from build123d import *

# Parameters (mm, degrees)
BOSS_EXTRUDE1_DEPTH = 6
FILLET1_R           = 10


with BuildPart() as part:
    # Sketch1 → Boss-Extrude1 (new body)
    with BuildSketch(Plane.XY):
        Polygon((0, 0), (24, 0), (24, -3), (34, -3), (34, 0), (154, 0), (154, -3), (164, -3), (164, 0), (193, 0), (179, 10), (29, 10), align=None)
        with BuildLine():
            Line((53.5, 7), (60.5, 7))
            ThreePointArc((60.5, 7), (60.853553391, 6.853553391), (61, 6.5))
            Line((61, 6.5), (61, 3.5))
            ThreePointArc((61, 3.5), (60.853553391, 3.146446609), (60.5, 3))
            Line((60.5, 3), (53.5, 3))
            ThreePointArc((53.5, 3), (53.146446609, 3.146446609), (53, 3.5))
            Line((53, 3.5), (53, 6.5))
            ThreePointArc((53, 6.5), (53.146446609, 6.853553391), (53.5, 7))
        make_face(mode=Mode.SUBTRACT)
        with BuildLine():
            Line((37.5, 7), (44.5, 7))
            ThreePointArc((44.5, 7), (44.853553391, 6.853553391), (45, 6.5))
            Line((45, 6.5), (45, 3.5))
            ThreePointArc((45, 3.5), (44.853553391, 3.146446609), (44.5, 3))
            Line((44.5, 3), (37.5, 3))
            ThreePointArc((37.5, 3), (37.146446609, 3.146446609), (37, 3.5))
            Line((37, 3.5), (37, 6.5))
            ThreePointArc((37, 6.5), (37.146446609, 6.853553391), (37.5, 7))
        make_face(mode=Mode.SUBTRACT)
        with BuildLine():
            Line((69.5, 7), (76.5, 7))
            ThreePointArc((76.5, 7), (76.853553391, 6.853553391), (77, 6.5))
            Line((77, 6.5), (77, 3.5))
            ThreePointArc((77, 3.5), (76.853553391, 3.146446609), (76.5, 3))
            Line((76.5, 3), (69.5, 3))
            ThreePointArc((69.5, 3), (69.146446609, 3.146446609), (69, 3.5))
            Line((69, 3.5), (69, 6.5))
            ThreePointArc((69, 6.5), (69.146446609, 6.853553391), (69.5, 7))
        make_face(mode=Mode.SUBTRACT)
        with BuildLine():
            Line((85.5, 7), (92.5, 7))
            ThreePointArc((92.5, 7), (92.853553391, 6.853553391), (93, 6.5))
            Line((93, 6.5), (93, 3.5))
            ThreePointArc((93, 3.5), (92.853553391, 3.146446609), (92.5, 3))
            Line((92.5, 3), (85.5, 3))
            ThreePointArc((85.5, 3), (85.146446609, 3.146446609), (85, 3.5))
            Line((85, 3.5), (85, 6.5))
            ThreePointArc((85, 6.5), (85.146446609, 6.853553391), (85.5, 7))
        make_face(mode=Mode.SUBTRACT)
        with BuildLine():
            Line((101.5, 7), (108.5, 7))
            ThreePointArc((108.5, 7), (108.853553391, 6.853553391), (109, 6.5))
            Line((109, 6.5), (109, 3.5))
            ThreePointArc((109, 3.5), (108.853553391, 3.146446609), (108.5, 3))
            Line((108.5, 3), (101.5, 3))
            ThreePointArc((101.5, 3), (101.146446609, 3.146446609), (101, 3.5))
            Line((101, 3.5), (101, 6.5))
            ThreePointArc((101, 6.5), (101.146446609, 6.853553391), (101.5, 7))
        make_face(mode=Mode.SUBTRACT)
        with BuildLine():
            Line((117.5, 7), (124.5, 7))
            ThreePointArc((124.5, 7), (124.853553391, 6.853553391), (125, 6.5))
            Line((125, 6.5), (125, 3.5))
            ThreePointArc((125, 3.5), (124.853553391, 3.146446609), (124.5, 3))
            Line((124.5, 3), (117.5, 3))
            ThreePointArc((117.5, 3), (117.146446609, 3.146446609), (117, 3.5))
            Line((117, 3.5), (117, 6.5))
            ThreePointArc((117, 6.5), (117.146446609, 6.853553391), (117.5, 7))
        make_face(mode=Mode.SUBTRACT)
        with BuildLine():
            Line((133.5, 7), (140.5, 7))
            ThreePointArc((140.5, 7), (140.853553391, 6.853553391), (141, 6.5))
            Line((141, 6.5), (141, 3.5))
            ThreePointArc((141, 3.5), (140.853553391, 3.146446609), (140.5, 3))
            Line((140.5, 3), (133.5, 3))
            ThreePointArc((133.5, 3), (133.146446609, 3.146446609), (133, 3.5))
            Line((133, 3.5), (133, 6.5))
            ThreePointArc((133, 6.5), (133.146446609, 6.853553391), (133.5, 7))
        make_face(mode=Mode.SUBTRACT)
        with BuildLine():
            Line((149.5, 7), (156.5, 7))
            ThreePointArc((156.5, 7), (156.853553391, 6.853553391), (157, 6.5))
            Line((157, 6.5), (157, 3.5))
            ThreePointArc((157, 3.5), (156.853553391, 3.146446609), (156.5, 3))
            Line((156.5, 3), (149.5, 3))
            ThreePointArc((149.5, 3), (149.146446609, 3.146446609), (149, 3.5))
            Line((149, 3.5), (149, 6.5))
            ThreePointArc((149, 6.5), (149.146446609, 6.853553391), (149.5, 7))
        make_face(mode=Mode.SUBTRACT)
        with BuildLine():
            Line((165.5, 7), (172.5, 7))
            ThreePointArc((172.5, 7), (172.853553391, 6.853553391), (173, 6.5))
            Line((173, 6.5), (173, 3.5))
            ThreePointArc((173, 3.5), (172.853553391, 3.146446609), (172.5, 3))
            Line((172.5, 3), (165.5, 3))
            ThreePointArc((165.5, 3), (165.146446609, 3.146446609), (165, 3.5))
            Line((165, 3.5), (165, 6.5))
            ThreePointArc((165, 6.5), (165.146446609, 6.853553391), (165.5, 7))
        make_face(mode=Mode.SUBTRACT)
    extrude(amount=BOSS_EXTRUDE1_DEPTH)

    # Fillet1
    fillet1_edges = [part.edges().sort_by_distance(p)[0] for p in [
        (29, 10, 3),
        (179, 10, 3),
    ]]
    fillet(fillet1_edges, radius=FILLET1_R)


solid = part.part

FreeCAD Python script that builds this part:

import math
import FreeCAD as App
import Part
import Sketcher
Q = App.Units.Quantity


def edges_at(feature, points):
    """Names of the edges that pass closest to the given points."""
    edges = feature.Shape.Edges
    near = lambda p: min(range(len(edges)), key=lambda i: edges[i].distToShape(Part.Vertex(*p))[0])
    return sorted({f"Edge{near(p) + 1}" for p in points})

doc = App.newDocument("Part")
params = doc.addObject("Spreadsheet::Sheet", "Params")
for row, (alias, value) in enumerate([
    ("sketch1_radius", "0.5 mm"),
    ("sketch1_width", "24 mm"),
    ("sketch1_width2", "10 mm"),
    ("sketch1_width3", "120 mm"),
    ("sketch1_width4", "29 mm"),
    ("pad1_length", "6 mm"),
    ("fillet_radius", "10 mm"),
], start=1):
    params.set(f"A{row}", alias)
    params.set(f"B{row}", "=" + value)
    params.setAlias(f"B{row}", alias)

body = doc.addObject("PartDesign::Body", "Body")

# Sketch on XY plane
sketch1 = body.newObject("Sketcher::SketchObject", "Sketch")
sketch1.AttachmentSupport = (doc.getObject("XY_Plane"), [""])
sketch1.MapMode = "FlatFace"
sketch1.addGeometry([
    Part.LineSegment(App.Vector(0, 0, 0), App.Vector(24, 0, 0)),  # 0
    Part.LineSegment(App.Vector(24, 0, 0), App.Vector(24, -3, 0)),  # 1
    Part.LineSegment(App.Vector(24, -3, 0), App.Vector(34, -3, 0)),  # 2
    Part.LineSegment(App.Vector(34, -3, 0), App.Vector(34, 0, 0)),  # 3
    Part.LineSegment(App.Vector(34, 0, 0), App.Vector(154, 0, 0)),  # 4
    Part.LineSegment(App.Vector(154, 0, 0), App.Vector(154, -3, 0)),  # 5
    Part.LineSegment(App.Vector(154, -3, 0), App.Vector(164, -3, 0)),  # 6
    Part.LineSegment(App.Vector(164, -3, 0), App.Vector(164, 0, 0)),  # 7
    Part.LineSegment(App.Vector(164, 0, 0), App.Vector(193, 0, 0)),  # 8
    Part.LineSegment(App.Vector(193, 0, 0), App.Vector(179, 10, 0)),  # 9
    Part.LineSegment(App.Vector(179, 10, 0), App.Vector(29, 10, 0)),  # 10
    Part.LineSegment(App.Vector(29, 10, 0), App.Vector(0, 0, 0)),  # 11
    Part.ArcOfCircle(Part.Circle(App.Vector(37.5, 6.5, 0), App.Vector(0, 0, 1), 0.5), math.radians(90), math.radians(180)),  # 12
    Part.LineSegment(App.Vector(37.5, 7, 0), App.Vector(44.5, 7, 0)),  # 13
    Part.ArcOfCircle(Part.Circle(App.Vector(44.5, 6.5, 0), App.Vector(0, 0, 1), 0.5), math.radians(0), math.radians(90)),  # 14
    Part.LineSegment(App.Vector(45, 6.5, 0), App.Vector(45, 3.5, 0)),  # 15
    Part.ArcOfCircle(Part.Circle(App.Vector(44.5, 3.5, 0), App.Vector(0, 0, 1), 0.5), math.radians(-90), math.radians(0)),  # 16
    Part.LineSegment(App.Vector(44.5, 3, 0), App.Vector(37.5, 3, 0)),  # 17
    Part.ArcOfCircle(Part.Circle(App.Vector(37.5, 3.5, 0), App.Vector(0, 0, 1), 0.5), math.radians(180), math.radians(270)),  # 18
    Part.LineSegment(App.Vector(37, 3.5, 0), App.Vector(37, 6.5, 0)),  # 19
    Part.ArcOfCircle(Part.Circle(App.Vector(53.5, 6.5, 0), App.Vector(0, 0, 1), 0.5), math.radians(90), math.radians(180)),  # 20
    Part.LineSegment(App.Vector(53.5, 7, 0), App.Vector(60.5, 7, 0)),  # 21
    Part.ArcOfCircle(Part.Circle(App.Vector(60.5, 6.5, 0), App.Vector(0, 0, 1), 0.5), math.radians(0), math.radians(90)),  # 22
    Part.LineSegment(App.Vector(61, 6.5, 0), App.Vector(61, 3.5, 0)),  # 23
    Part.ArcOfCircle(Part.Circle(App.Vector(60.5, 3.5, 0), App.Vector(0, 0, 1), 0.5), math.radians(-90), math.radians(0)),  # 24
    Part.LineSegment(App.Vector(60.5, 3, 0), App.Vector(53.5, 3, 0)),  # 25
    Part.ArcOfCircle(Part.Circle(App.Vector(53.5, 3.5, 0), App.Vector(0, 0, 1), 0.5), math.radians(180), math.radians(270)),  # 26
    Part.LineSegment(App.Vector(53, 3.5, 0), App.Vector(53, 6.5, 0)),  # 27
    Part.ArcOfCircle(Part.Circle(App.Vector(69.5, 6.5, 0), App.Vector(0, 0, 1), 0.5), math.radians(90), math.radians(180)),  # 28
    Part.LineSegment(App.Vector(69.5, 7, 0), App.Vector(76.5, 7, 0)),  # 29
    Part.ArcOfCircle(Part.Circle(App.Vector(76.5, 6.5, 0), App.Vector(0, 0, 1), 0.5), math.radians(0), math.radians(90)),  # 30
    Part.LineSegment(App.Vector(77, 6.5, 0), App.Vector(77, 3.5, 0)),  # 31
    Part.ArcOfCircle(Part.Circle(App.Vector(76.5, 3.5, 0), App.Vector(0, 0, 1), 0.5), math.radians(-90), math.radians(0)),  # 32
    Part.LineSegment(App.Vector(76.5, 3, 0), App.Vector(69.5, 3, 0)),  # 33
    Part.ArcOfCircle(Part.Circle(App.Vector(69.5, 3.5, 0), App.Vector(0, 0, 1), 0.5), math.radians(180), math.radians(270)),  # 34
    Part.LineSegment(App.Vector(69, 3.5, 0), App.Vector(69, 6.5, 0)),  # 35
    Part.ArcOfCircle(Part.Circle(App.Vector(85.5, 6.5, 0), App.Vector(0, 0, 1), 0.5), math.radians(90), math.radians(180)),  # 36
    Part.LineSegment(App.Vector(85.5, 7, 0), App.Vector(92.5, 7, 0)),  # 37
    Part.ArcOfCircle(Part.Circle(App.Vector(92.5, 6.5, 0), App.Vector(0, 0, 1), 0.5), math.radians(0), math.radians(90)),  # 38
    Part.LineSegment(App.Vector(93, 6.5, 0), App.Vector(93, 3.5, 0)),  # 39
    Part.ArcOfCircle(Part.Circle(App.Vector(92.5, 3.5, 0), App.Vector(0, 0, 1), 0.5), math.radians(-90), math.radians(0)),  # 40
    Part.LineSegment(App.Vector(92.5, 3, 0), App.Vector(85.5, 3, 0)),  # 41
    Part.ArcOfCircle(Part.Circle(App.Vector(85.5, 3.5, 0), App.Vector(0, 0, 1), 0.5), math.radians(180), math.radians(270)),  # 42
    Part.LineSegment(App.Vector(85, 3.5, 0), App.Vector(85, 6.5, 0)),  # 43
    Part.ArcOfCircle(Part.Circle(App.Vector(101.5, 6.5, 0), App.Vector(0, 0, 1), 0.5), math.radians(90), math.radians(180)),  # 44
    Part.LineSegment(App.Vector(101.5, 7, 0), App.Vector(108.5, 7, 0)),  # 45
    Part.ArcOfCircle(Part.Circle(App.Vector(108.5, 6.5, 0), App.Vector(0, 0, 1), 0.5), math.radians(0), math.radians(90)),  # 46
    Part.LineSegment(App.Vector(109, 6.5, 0), App.Vector(109, 3.5, 0)),  # 47
    Part.ArcOfCircle(Part.Circle(App.Vector(108.5, 3.5, 0), App.Vector(0, 0, 1), 0.5), math.radians(-90), math.radians(0)),  # 48
    Part.LineSegment(App.Vector(108.5, 3, 0), App.Vector(101.5, 3, 0)),  # 49
    Part.ArcOfCircle(Part.Circle(App.Vector(101.5, 3.5, 0), App.Vector(0, 0, 1), 0.5), math.radians(180), math.radians(270)),  # 50
    Part.LineSegment(App.Vector(101, 3.5, 0), App.Vector(101, 6.5, 0)),  # 51
    Part.ArcOfCircle(Part.Circle(App.Vector(117.5, 6.5, 0), App.Vector(0, 0, 1), 0.5), math.radians(90), math.radians(180)),  # 52
    Part.LineSegment(App.Vector(117.5, 7, 0), App.Vector(124.5, 7, 0)),  # 53
    Part.ArcOfCircle(Part.Circle(App.Vector(124.5, 6.5, 0), App.Vector(0, 0, 1), 0.5), math.radians(0), math.radians(90)),  # 54
    Part.LineSegment(App.Vector(125, 6.5, 0), App.Vector(125, 3.5, 0)),  # 55
    Part.ArcOfCircle(Part.Circle(App.Vector(124.5, 3.5, 0), App.Vector(0, 0, 1), 0.5), math.radians(-90), math.radians(0)),  # 56
    Part.LineSegment(App.Vector(124.5, 3, 0), App.Vector(117.5, 3, 0)),  # 57
    Part.ArcOfCircle(Part.Circle(App.Vector(117.5, 3.5, 0), App.Vector(0, 0, 1), 0.5), math.radians(180), math.radians(270)),  # 58
    Part.LineSegment(App.Vector(117, 3.5, 0), App.Vector(117, 6.5, 0)),  # 59
    Part.ArcOfCircle(Part.Circle(App.Vector(133.5, 6.5, 0), App.Vector(0, 0, 1), 0.5), math.radians(90), math.radians(180)),  # 60
    Part.LineSegment(App.Vector(133.5, 7, 0), App.Vector(140.5, 7, 0)),  # 61
    Part.ArcOfCircle(Part.Circle(App.Vector(140.5, 6.5, 0), App.Vector(0, 0, 1), 0.5), math.radians(0), math.radians(90)),  # 62
    Part.LineSegment(App.Vector(141, 6.5, 0), App.Vector(141, 3.5, 0)),  # 63
    Part.ArcOfCircle(Part.Circle(App.Vector(140.5, 3.5, 0), App.Vector(0, 0, 1), 0.5), math.radians(-90), math.radians(0)),  # 64
    Part.LineSegment(App.Vector(140.5, 3, 0), App.Vector(133.5, 3, 0)),  # 65
    Part.ArcOfCircle(Part.Circle(App.Vector(133.5, 3.5, 0), App.Vector(0, 0, 1), 0.5), math.radians(180), math.radians(270)),  # 66
    Part.LineSegment(App.Vector(133, 3.5, 0), App.Vector(133, 6.5, 0)),  # 67
    Part.ArcOfCircle(Part.Circle(App.Vector(149.5, 6.5, 0), App.Vector(0, 0, 1), 0.5), math.radians(90), math.radians(180)),  # 68
    Part.LineSegment(App.Vector(149.5, 7, 0), App.Vector(156.5, 7, 0)),  # 69
    Part.ArcOfCircle(Part.Circle(App.Vector(156.5, 6.5, 0), App.Vector(0, 0, 1), 0.5), math.radians(0), math.radians(90)),  # 70
    Part.LineSegment(App.Vector(157, 6.5, 0), App.Vector(157, 3.5, 0)),  # 71
    Part.ArcOfCircle(Part.Circle(App.Vector(156.5, 3.5, 0), App.Vector(0, 0, 1), 0.5), math.radians(-90), math.radians(0)),  # 72
    Part.LineSegment(App.Vector(156.5, 3, 0), App.Vector(149.5, 3, 0)),  # 73
    Part.ArcOfCircle(Part.Circle(App.Vector(149.5, 3.5, 0), App.Vector(0, 0, 1), 0.5), math.radians(180), math.radians(270)),  # 74
    Part.LineSegment(App.Vector(149, 3.5, 0), App.Vector(149, 6.5, 0)),  # 75
    Part.ArcOfCircle(Part.Circle(App.Vector(165.5, 6.5, 0), App.Vector(0, 0, 1), 0.5), math.radians(90), math.radians(180)),  # 76
    Part.LineSegment(App.Vector(165.5, 7, 0), App.Vector(172.5, 7, 0)),  # 77
    Part.ArcOfCircle(Part.Circle(App.Vector(172.5, 6.5, 0), App.Vector(0, 0, 1), 0.5), math.radians(0), math.radians(90)),  # 78
    Part.LineSegment(App.Vector(173, 6.5, 0), App.Vector(173, 3.5, 0)),  # 79
    Part.ArcOfCircle(Part.Circle(App.Vector(172.5, 3.5, 0), App.Vector(0, 0, 1), 0.5), math.radians(-90), math.radians(0)),  # 80
    Part.LineSegment(App.Vector(172.5, 3, 0), App.Vector(165.5, 3, 0)),  # 81
    Part.ArcOfCircle(Part.Circle(App.Vector(165.5, 3.5, 0), App.Vector(0, 0, 1), 0.5), math.radians(180), math.radians(270)),  # 82
    Part.LineSegment(App.Vector(165, 3.5, 0), App.Vector(165, 6.5, 0)),  # 83
], False)
sketch1.addConstraint([
    Sketcher.Constraint("Coincident", 0, 2, 1, 1),
    Sketcher.Constraint("Coincident", 1, 2, 2, 1),
    Sketcher.Constraint("Coincident", 2, 2, 3, 1),
    Sketcher.Constraint("Coincident", 3, 2, 4, 1),
    Sketcher.Constraint("Coincident", 4, 2, 5, 1),
    Sketcher.Constraint("Coincident", 5, 2, 6, 1),
    Sketcher.Constraint("Coincident", 6, 2, 7, 1),
    Sketcher.Constraint("Coincident", 7, 2, 8, 1),
    Sketcher.Constraint("Coincident", 8, 2, 9, 1),
    Sketcher.Constraint("Coincident", 9, 2, 10, 1),
    Sketcher.Constraint("Coincident", 10, 2, 11, 1),
    Sketcher.Constraint("Coincident", 11, 2, 0, 1),
    Sketcher.Constraint("Tangent", 12, 1, 13, 1),
    Sketcher.Constraint("Tangent", 13, 2, 14, 2),
    Sketcher.Constraint("Tangent", 14, 1, 15, 1),
    Sketcher.Constraint("Tangent", 15, 2, 16, 2),
    Sketcher.Constraint("Tangent", 16, 1, 17, 1),
    Sketcher.Constraint("Tangent", 17, 2, 18, 2),
    Sketcher.Constraint("Tangent", 18, 1, 19, 1),
    Sketcher.Constraint("Tangent", 19, 2, 12, 2),
    Sketcher.Constraint("Tangent", 20, 1, 21, 1),
    Sketcher.Constraint("Tangent", 21, 2, 22, 2),
    Sketcher.Constraint("Tangent", 22, 1, 23, 1),
    Sketcher.Constraint("Tangent", 23, 2, 24, 2),
    Sketcher.Constraint("Tangent", 24, 1, 25, 1),
    Sketcher.Constraint("Tangent", 25, 2, 26, 2),
    Sketcher.Constraint("Tangent", 26, 1, 27, 1),
    Sketcher.Constraint("Tangent", 27, 2, 20, 2),
    Sketcher.Constraint("Tangent", 28, 1, 29, 1),
    Sketcher.Constraint("Tangent", 29, 2, 30, 2),
    Sketcher.Constraint("Tangent", 30, 1, 31, 1),
    Sketcher.Constraint("Tangent", 31, 2, 32, 2),
    Sketcher.Constraint("Tangent", 32, 1, 33, 1),
    Sketcher.Constraint("Tangent", 33, 2, 34, 2),
    Sketcher.Constraint("Tangent", 34, 1, 35, 1),
    Sketcher.Constraint("Tangent", 35, 2, 28, 2),
    Sketcher.Constraint("Tangent", 36, 1, 37, 1),
    Sketcher.Constraint("Tangent", 37, 2, 38, 2),
    Sketcher.Constraint("Tangent", 38, 1, 39, 1),
    Sketcher.Constraint("Tangent", 39, 2, 40, 2),
    Sketcher.Constraint("Tangent", 40, 1, 41, 1),
    Sketcher.Constraint("Tangent", 41, 2, 42, 2),
    Sketcher.Constraint("Tangent", 42, 1, 43, 1),
    Sketcher.Constraint("Tangent", 43, 2, 36, 2),
    Sketcher.Constraint("Tangent", 44, 1, 45, 1),
    Sketcher.Constraint("Tangent", 45, 2, 46, 2),
    Sketcher.Constraint("Tangent", 46, 1, 47, 1),
    Sketcher.Constraint("Tangent", 47, 2, 48, 2),
    Sketcher.Constraint("Tangent", 48, 1, 49, 1),
    Sketcher.Constraint("Tangent", 49, 2, 50, 2),
    Sketcher.Constraint("Tangent", 50, 1, 51, 1),
    Sketcher.Constraint("Tangent", 51, 2, 44, 2),
    Sketcher.Constraint("Tangent", 52, 1, 53, 1),
    Sketcher.Constraint("Tangent", 53, 2, 54, 2),
    Sketcher.Constraint("Tangent", 54, 1, 55, 1),
    Sketcher.Constraint("Tangent", 55, 2, 56, 2),
    Sketcher.Constraint("Tangent", 56, 1, 57, 1),
    Sketcher.Constraint("Tangent", 57, 2, 58, 2),
    Sketcher.Constraint("Tangent", 58, 1, 59, 1),
    Sketcher.Constraint("Tangent", 59, 2, 52, 2),
    Sketcher.Constraint("Tangent", 60, 1, 61, 1),
    Sketcher.Constraint("Tangent", 61, 2, 62, 2),
    Sketcher.Constraint("Tangent", 62, 1, 63, 1),
    Sketcher.Constraint("Tangent", 63, 2, 64, 2),
    Sketcher.Constraint("Tangent", 64, 1, 65, 1),
    Sketcher.Constraint("Tangent", 65, 2, 66, 2),
    Sketcher.Constraint("Tangent", 66, 1, 67, 1),
    Sketcher.Constraint("Tangent", 67, 2, 60, 2),
    Sketcher.Constraint("Tangent", 68, 1, 69, 1),
    Sketcher.Constraint("Tangent", 69, 2, 70, 2),
    Sketcher.Constraint("Tangent", 70, 1, 71, 1),
    Sketcher.Constraint("Tangent", 71, 2, 72, 2),
    Sketcher.Constraint("Tangent", 72, 1, 73, 1),
    Sketcher.Constraint("Tangent", 73, 2, 74, 2),
    Sketcher.Constraint("Tangent", 74, 1, 75, 1),
    Sketcher.Constraint("Tangent", 75, 2, 68, 2),
    Sketcher.Constraint("Tangent", 76, 1, 77, 1),
    Sketcher.Constraint("Tangent", 77, 2, 78, 2),
    Sketcher.Constraint("Tangent", 78, 1, 79, 1),
    Sketcher.Constraint("Tangent", 79, 2, 80, 2),
    Sketcher.Constraint("Tangent", 80, 1, 81, 1),
    Sketcher.Constraint("Tangent", 81, 2, 82, 2),
    Sketcher.Constraint("Tangent", 82, 1, 83, 1),
    Sketcher.Constraint("Tangent", 83, 2, 76, 2),
    Sketcher.Constraint("Horizontal", 0),
    Sketcher.Constraint("Vertical", 1),
    Sketcher.Constraint("Horizontal", 2),
    Sketcher.Constraint("Vertical", 3),
    Sketcher.Constraint("Horizontal", 4),
    Sketcher.Constraint("Vertical", 5),
    Sketcher.Constraint("Horizontal", 6),
    Sketcher.Constraint("Vertical", 7),
    Sketcher.Constraint("Horizontal", 8),
    Sketcher.Constraint("Horizontal", 10),
    Sketcher.Constraint("Horizontal", 13),
    Sketcher.Constraint("Vertical", 15),
    Sketcher.Constraint("Horizontal", 17),
    Sketcher.Constraint("Vertical", 19),
    Sketcher.Constraint("Horizontal", 21),
    Sketcher.Constraint("Vertical", 23),
    Sketcher.Constraint("Horizontal", 25),
    Sketcher.Constraint("Vertical", 27),
    Sketcher.Constraint("Horizontal", 29),
    Sketcher.Constraint("Vertical", 31),
    Sketcher.Constraint("Horizontal", 33),
    Sketcher.Constraint("Vertical", 35),
    Sketcher.Constraint("Horizontal", 37),
    Sketcher.Constraint("Vertical", 39),
    Sketcher.Constraint("Horizontal", 41),
    Sketcher.Constraint("Vertical", 43),
    Sketcher.Constraint("Horizontal", 45),
    Sketcher.Constraint("Vertical", 47),
    Sketcher.Constraint("Horizontal", 49),
    Sketcher.Constraint("Vertical", 51),
    Sketcher.Constraint("Horizontal", 53),
    Sketcher.Constraint("Vertical", 55),
    Sketcher.Constraint("Horizontal", 57),
    Sketcher.Constraint("Vertical", 59),
    Sketcher.Constraint("Horizontal", 61),
    Sketcher.Constraint("Vertical", 63),
    Sketcher.Constraint("Horizontal", 65),
    Sketcher.Constraint("Vertical", 67),
    Sketcher.Constraint("Horizontal", 69),
    Sketcher.Constraint("Vertical", 71),
    Sketcher.Constraint("Horizontal", 73),
    Sketcher.Constraint("Vertical", 75),
    Sketcher.Constraint("Horizontal", 77),
    Sketcher.Constraint("Vertical", 79),
    Sketcher.Constraint("Horizontal", 81),
    Sketcher.Constraint("Vertical", 83),
    Sketcher.Constraint("Coincident", 11, 2, -1, 1),
    Sketcher.Constraint("Equal", 12, 14),
    Sketcher.Constraint("Equal", 14, 16),
    Sketcher.Constraint("Equal", 16, 18),
    Sketcher.Constraint("Equal", 18, 20),
    Sketcher.Constraint("Equal", 20, 22),
    Sketcher.Constraint("Equal", 22, 24),
    Sketcher.Constraint("Equal", 24, 26),
    Sketcher.Constraint("Equal", 26, 28),
    Sketcher.Constraint("Equal", 28, 30),
    Sketcher.Constraint("Equal", 30, 32),
    Sketcher.Constraint("Equal", 32, 34),
    Sketcher.Constraint("Equal", 34, 36),
    Sketcher.Constraint("Equal", 36, 38),
    Sketcher.Constraint("Equal", 38, 40),
    Sketcher.Constraint("Equal", 40, 42),
    Sketcher.Constraint("Equal", 42, 44),
    Sketcher.Constraint("Equal", 44, 46),
    Sketcher.Constraint("Equal", 46, 48),
    Sketcher.Constraint("Equal", 48, 50),
    Sketcher.Constraint("Equal", 50, 52),
    Sketcher.Constraint("Equal", 52, 54),
    Sketcher.Constraint("Equal", 54, 56),
    Sketcher.Constraint("Equal", 56, 58),
    Sketcher.Constraint("Equal", 58, 60),
    Sketcher.Constraint("Equal", 60, 62),
    Sketcher.Constraint("Equal", 62, 64),
    Sketcher.Constraint("Equal", 64, 66),
    Sketcher.Constraint("Equal", 66, 68),
    Sketcher.Constraint("Equal", 68, 70),
    Sketcher.Constraint("Equal", 70, 72),
    Sketcher.Constraint("Equal", 72, 74),
    Sketcher.Constraint("Equal", 74, 76),
    Sketcher.Constraint("Equal", 76, 78),
    Sketcher.Constraint("Equal", 78, 80),
    Sketcher.Constraint("Equal", 80, 82),
    Sketcher.Constraint("PointOnObject", 3, 2, -1),
    Sketcher.Constraint("PointOnObject", 7, 2, -1),
    Sketcher.Constraint("Horizontal", 14, 3, 20, 3),
    Sketcher.Constraint("Horizontal", 18, 3, 24, 3),
    Sketcher.Constraint("Horizontal", 22, 3, 28, 3),
    Sketcher.Constraint("Horizontal", 26, 3, 32, 3),
    Sketcher.Constraint("Horizontal", 30, 3, 36, 3),
    Sketcher.Constraint("Horizontal", 34, 3, 40, 3),
    Sketcher.Constraint("Horizontal", 38, 3, 44, 3),
    Sketcher.Constraint("Horizontal", 42, 3, 48, 3),
    Sketcher.Constraint("Horizontal", 46, 3, 52, 3),
    Sketcher.Constraint("Horizontal", 50, 3, 56, 3),
    Sketcher.Constraint("Horizontal", 54, 3, 60, 3),
    Sketcher.Constraint("Horizontal", 58, 3, 64, 3),
    Sketcher.Constraint("Horizontal", 62, 3, 68, 3),
    Sketcher.Constraint("Horizontal", 66, 3, 72, 3),
    Sketcher.Constraint("Horizontal", 70, 3, 76, 3),
    Sketcher.Constraint("Horizontal", 74, 3, 80, 3),
    Sketcher.Constraint("Horizontal", 2, 2, 5, 2),
    Sketcher.Constraint("Equal", 2, 6),
    Sketcher.Constraint("Equal", 17, 21),
    Sketcher.Constraint("Equal", 25, 29),
    Sketcher.Constraint("Equal", 33, 37),
    Sketcher.Constraint("Equal", 41, 45),
    Sketcher.Constraint("Equal", 49, 53),
    Sketcher.Constraint("Equal", 57, 61),
    Sketcher.Constraint("Equal", 65, 69),
    Sketcher.Constraint("Equal", 73, 77),
    Sketcher.Constraint("Equal", 7, 15),
    Sketcher.Constraint("Radius", 12, Q("0.5 mm")),
    Sketcher.Constraint("DistanceX", 0, 1, 0, 2, Q("24 mm")),
    Sketcher.Constraint("DistanceX", 2, 1, 2, 2, Q("10 mm")),
    Sketcher.Constraint("DistanceX", 4, 1, 4, 2, Q("120 mm")),
    Sketcher.Constraint("DistanceX", 8, 1, 8, 2, Q("29 mm")),
    Sketcher.Constraint("DistanceX", 10, 2, 10, 1, Q("150 mm")),
    Sketcher.Constraint("DistanceX", 13, 1, 13, 2, Q("7 mm")),
    Sketcher.Constraint("DistanceY", 1, 2, 1, 1, Q("3 mm")),
    Sketcher.Constraint("DistanceX", -1, 1, 9, 2, Q("179 mm")),
    Sketcher.Constraint("DistanceY", -1, 1, 9, 2, Q("10 mm")),
    Sketcher.Constraint("DistanceY", -1, 1, 12, 1, Q("7 mm")),
    Sketcher.Constraint("DistanceX", -1, 1, 14, 1, Q("45 mm")),
    Sketcher.Constraint("DistanceX", -1, 1, 22, 1, Q("61 mm")),
    Sketcher.Constraint("DistanceX", -1, 1, 30, 1, Q("77 mm")),
    Sketcher.Constraint("DistanceX", -1, 1, 38, 1, Q("93 mm")),
    Sketcher.Constraint("DistanceX", -1, 1, 46, 1, Q("109 mm")),
    Sketcher.Constraint("DistanceX", -1, 1, 54, 1, Q("125 mm")),
    Sketcher.Constraint("DistanceX", -1, 1, 62, 1, Q("141 mm")),
    Sketcher.Constraint("DistanceX", -1, 1, 70, 1, Q("157 mm")),
    Sketcher.Constraint("DistanceX", -1, 1, 78, 1, Q("173 mm")),
])
sketch1.setExpression("Constraints[195]", "Params.sketch1_radius")
sketch1.setExpression("Constraints[196]", "Params.sketch1_width")
sketch1.setExpression("Constraints[197]", "Params.sketch1_width2")
sketch1.setExpression("Constraints[198]", "Params.sketch1_width3")
sketch1.setExpression("Constraints[199]", "Params.sketch1_width4")
pad1 = body.newObject("PartDesign::Pad", "Pad")
pad1.Profile = sketch1
pad1.setExpression("Length", "Params.pad1_length")
doc.recompute()

fillet = body.newObject("PartDesign::Fillet", "Fillet")
fillet.Base = (pad1, edges_at(pad1, [(29, 10, 3), (179, 10, 3)]))
fillet.setExpression("Radius", "Params.fillet_radius")

doc.recompute()
